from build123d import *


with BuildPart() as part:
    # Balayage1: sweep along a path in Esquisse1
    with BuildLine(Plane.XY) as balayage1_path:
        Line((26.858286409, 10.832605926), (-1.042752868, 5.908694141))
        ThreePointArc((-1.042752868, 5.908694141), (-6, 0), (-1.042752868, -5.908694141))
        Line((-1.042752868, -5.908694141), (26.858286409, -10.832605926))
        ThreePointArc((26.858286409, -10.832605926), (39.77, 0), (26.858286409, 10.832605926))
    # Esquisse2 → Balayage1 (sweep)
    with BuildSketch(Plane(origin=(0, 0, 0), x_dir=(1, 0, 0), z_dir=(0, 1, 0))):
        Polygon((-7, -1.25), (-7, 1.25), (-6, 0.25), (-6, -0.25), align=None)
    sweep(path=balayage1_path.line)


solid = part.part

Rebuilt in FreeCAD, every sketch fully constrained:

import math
import FreeCAD as App
import Part
import Sketcher
Q = App.Units.Quantity


def add_polygon(sketch, points):
    """Adds a closed chain of lines whose ends are joined by coincident constraints."""
    first, n = sketch.GeometryCount, len(points)
    for a, b in zip(points, points[1:] + points[:1]):
        sketch.addGeometry(Part.LineSegment(App.Vector(*a, 0), App.Vector(*b, 0)), False)
    for i in range(n):
        sketch.addConstraint(Sketcher.Constraint("Coincident", first + i, 2, first + (i + 1) % n, 1))

doc = App.newDocument("Part")
body = doc.addObject("PartDesign::Body", "Body")

# Sketch on XZ plane
sketch1 = doc.addObject("Sketcher::SketchObject", "Sketch")
body.addObject(sketch1)
sketch1.AttachmentSupport = (doc.XZ_Plane, [""])
sketch1.MapMode = "FlatFace"
add_polygon(sketch1, [(-7, -1.2), (-7, 1.2), (-6, 0.2), (-6, -0.2)])  # lines 0-3
sketch1.addConstraint([
    Sketcher.Constraint("Vertical", 0),
    Sketcher.Constraint("Vertical", 2),
    Sketcher.Constraint("Perpendicular", 1, 3),
    Sketcher.Constraint("Equal", 1, 3),
    Sketcher.Constraint("DistanceY", 0, 1, 0, 2, Q("2.5 mm")),
    Sketcher.Constraint("DistanceY", 2, 2, 2, 1, Q("0.5 mm")),
    Sketcher.Constraint("DistanceX", 0, 2, -1, 1, Q("7 mm")),
    Sketcher.Constraint("DistanceY", -1, 1, 0, 2, Q("1.25 mm")),
])

# Sketch on XY plane
sketch2 = doc.addObject("Sketcher::SketchObject", "Sketch001")
body.addObject(sketch2)
sketch2.AttachmentSupport = (doc.XY_Plane, [""])
sketch2.MapMode = "FlatFace"
sketch2.addGeometry([
    Part.LineSegment(App.Vector(27, 11, 0), App.Vector(-1, 6, 0)),
    Part.ArcOfCircle(Part.Circle(App.Vector(0, 0, 0), App.Vector(0, 0, 1), 6), math.radians(100), math.radians(260)),
    Part.LineSegment(App.Vector(-1, -6, 0), App.Vector(27, -11, 0)),
    Part.ArcOfCircle(Part.Circle(App.Vector(29, 0, 0), App.Vector(0, 0, 1), 11), math.radians(-100), math.radians(100)),
], False)
sketch2.addConstraint([
    Sketcher.Constraint("Tangent", 0, 2, 1, 1),
    Sketcher.Constraint("Tangent", 1, 2, 2, 1),
    Sketcher.Constraint("Tangent", 2, 2, 3, 1),
    Sketcher.Constraint("Tangent", 3, 2, 0, 1),
    Sketcher.Constraint("Coincident", 1, 3, -1, 1),
    Sketcher.Constraint("PointOnObject", 3, 3, -1),
    Sketcher.Constraint("Radius", 1, Q("6 mm")),
    Sketcher.Constraint("Radius", 3, Q("11 mm")),
    Sketcher.Constraint("DistanceX", -1, 1, 3, 3, Q("28.77 mm")),
])
doc.recompute()

additivepipe = doc.addObject("PartDesign::AdditivePipe", "AdditivePipe")
body.addObject(additivepipe)
additivepipe.Profile = sketch1
additivepipe.Spine = (sketch2, ["Edge1", "Edge2", "Edge3", "Edge4"])

doc.recompute()
